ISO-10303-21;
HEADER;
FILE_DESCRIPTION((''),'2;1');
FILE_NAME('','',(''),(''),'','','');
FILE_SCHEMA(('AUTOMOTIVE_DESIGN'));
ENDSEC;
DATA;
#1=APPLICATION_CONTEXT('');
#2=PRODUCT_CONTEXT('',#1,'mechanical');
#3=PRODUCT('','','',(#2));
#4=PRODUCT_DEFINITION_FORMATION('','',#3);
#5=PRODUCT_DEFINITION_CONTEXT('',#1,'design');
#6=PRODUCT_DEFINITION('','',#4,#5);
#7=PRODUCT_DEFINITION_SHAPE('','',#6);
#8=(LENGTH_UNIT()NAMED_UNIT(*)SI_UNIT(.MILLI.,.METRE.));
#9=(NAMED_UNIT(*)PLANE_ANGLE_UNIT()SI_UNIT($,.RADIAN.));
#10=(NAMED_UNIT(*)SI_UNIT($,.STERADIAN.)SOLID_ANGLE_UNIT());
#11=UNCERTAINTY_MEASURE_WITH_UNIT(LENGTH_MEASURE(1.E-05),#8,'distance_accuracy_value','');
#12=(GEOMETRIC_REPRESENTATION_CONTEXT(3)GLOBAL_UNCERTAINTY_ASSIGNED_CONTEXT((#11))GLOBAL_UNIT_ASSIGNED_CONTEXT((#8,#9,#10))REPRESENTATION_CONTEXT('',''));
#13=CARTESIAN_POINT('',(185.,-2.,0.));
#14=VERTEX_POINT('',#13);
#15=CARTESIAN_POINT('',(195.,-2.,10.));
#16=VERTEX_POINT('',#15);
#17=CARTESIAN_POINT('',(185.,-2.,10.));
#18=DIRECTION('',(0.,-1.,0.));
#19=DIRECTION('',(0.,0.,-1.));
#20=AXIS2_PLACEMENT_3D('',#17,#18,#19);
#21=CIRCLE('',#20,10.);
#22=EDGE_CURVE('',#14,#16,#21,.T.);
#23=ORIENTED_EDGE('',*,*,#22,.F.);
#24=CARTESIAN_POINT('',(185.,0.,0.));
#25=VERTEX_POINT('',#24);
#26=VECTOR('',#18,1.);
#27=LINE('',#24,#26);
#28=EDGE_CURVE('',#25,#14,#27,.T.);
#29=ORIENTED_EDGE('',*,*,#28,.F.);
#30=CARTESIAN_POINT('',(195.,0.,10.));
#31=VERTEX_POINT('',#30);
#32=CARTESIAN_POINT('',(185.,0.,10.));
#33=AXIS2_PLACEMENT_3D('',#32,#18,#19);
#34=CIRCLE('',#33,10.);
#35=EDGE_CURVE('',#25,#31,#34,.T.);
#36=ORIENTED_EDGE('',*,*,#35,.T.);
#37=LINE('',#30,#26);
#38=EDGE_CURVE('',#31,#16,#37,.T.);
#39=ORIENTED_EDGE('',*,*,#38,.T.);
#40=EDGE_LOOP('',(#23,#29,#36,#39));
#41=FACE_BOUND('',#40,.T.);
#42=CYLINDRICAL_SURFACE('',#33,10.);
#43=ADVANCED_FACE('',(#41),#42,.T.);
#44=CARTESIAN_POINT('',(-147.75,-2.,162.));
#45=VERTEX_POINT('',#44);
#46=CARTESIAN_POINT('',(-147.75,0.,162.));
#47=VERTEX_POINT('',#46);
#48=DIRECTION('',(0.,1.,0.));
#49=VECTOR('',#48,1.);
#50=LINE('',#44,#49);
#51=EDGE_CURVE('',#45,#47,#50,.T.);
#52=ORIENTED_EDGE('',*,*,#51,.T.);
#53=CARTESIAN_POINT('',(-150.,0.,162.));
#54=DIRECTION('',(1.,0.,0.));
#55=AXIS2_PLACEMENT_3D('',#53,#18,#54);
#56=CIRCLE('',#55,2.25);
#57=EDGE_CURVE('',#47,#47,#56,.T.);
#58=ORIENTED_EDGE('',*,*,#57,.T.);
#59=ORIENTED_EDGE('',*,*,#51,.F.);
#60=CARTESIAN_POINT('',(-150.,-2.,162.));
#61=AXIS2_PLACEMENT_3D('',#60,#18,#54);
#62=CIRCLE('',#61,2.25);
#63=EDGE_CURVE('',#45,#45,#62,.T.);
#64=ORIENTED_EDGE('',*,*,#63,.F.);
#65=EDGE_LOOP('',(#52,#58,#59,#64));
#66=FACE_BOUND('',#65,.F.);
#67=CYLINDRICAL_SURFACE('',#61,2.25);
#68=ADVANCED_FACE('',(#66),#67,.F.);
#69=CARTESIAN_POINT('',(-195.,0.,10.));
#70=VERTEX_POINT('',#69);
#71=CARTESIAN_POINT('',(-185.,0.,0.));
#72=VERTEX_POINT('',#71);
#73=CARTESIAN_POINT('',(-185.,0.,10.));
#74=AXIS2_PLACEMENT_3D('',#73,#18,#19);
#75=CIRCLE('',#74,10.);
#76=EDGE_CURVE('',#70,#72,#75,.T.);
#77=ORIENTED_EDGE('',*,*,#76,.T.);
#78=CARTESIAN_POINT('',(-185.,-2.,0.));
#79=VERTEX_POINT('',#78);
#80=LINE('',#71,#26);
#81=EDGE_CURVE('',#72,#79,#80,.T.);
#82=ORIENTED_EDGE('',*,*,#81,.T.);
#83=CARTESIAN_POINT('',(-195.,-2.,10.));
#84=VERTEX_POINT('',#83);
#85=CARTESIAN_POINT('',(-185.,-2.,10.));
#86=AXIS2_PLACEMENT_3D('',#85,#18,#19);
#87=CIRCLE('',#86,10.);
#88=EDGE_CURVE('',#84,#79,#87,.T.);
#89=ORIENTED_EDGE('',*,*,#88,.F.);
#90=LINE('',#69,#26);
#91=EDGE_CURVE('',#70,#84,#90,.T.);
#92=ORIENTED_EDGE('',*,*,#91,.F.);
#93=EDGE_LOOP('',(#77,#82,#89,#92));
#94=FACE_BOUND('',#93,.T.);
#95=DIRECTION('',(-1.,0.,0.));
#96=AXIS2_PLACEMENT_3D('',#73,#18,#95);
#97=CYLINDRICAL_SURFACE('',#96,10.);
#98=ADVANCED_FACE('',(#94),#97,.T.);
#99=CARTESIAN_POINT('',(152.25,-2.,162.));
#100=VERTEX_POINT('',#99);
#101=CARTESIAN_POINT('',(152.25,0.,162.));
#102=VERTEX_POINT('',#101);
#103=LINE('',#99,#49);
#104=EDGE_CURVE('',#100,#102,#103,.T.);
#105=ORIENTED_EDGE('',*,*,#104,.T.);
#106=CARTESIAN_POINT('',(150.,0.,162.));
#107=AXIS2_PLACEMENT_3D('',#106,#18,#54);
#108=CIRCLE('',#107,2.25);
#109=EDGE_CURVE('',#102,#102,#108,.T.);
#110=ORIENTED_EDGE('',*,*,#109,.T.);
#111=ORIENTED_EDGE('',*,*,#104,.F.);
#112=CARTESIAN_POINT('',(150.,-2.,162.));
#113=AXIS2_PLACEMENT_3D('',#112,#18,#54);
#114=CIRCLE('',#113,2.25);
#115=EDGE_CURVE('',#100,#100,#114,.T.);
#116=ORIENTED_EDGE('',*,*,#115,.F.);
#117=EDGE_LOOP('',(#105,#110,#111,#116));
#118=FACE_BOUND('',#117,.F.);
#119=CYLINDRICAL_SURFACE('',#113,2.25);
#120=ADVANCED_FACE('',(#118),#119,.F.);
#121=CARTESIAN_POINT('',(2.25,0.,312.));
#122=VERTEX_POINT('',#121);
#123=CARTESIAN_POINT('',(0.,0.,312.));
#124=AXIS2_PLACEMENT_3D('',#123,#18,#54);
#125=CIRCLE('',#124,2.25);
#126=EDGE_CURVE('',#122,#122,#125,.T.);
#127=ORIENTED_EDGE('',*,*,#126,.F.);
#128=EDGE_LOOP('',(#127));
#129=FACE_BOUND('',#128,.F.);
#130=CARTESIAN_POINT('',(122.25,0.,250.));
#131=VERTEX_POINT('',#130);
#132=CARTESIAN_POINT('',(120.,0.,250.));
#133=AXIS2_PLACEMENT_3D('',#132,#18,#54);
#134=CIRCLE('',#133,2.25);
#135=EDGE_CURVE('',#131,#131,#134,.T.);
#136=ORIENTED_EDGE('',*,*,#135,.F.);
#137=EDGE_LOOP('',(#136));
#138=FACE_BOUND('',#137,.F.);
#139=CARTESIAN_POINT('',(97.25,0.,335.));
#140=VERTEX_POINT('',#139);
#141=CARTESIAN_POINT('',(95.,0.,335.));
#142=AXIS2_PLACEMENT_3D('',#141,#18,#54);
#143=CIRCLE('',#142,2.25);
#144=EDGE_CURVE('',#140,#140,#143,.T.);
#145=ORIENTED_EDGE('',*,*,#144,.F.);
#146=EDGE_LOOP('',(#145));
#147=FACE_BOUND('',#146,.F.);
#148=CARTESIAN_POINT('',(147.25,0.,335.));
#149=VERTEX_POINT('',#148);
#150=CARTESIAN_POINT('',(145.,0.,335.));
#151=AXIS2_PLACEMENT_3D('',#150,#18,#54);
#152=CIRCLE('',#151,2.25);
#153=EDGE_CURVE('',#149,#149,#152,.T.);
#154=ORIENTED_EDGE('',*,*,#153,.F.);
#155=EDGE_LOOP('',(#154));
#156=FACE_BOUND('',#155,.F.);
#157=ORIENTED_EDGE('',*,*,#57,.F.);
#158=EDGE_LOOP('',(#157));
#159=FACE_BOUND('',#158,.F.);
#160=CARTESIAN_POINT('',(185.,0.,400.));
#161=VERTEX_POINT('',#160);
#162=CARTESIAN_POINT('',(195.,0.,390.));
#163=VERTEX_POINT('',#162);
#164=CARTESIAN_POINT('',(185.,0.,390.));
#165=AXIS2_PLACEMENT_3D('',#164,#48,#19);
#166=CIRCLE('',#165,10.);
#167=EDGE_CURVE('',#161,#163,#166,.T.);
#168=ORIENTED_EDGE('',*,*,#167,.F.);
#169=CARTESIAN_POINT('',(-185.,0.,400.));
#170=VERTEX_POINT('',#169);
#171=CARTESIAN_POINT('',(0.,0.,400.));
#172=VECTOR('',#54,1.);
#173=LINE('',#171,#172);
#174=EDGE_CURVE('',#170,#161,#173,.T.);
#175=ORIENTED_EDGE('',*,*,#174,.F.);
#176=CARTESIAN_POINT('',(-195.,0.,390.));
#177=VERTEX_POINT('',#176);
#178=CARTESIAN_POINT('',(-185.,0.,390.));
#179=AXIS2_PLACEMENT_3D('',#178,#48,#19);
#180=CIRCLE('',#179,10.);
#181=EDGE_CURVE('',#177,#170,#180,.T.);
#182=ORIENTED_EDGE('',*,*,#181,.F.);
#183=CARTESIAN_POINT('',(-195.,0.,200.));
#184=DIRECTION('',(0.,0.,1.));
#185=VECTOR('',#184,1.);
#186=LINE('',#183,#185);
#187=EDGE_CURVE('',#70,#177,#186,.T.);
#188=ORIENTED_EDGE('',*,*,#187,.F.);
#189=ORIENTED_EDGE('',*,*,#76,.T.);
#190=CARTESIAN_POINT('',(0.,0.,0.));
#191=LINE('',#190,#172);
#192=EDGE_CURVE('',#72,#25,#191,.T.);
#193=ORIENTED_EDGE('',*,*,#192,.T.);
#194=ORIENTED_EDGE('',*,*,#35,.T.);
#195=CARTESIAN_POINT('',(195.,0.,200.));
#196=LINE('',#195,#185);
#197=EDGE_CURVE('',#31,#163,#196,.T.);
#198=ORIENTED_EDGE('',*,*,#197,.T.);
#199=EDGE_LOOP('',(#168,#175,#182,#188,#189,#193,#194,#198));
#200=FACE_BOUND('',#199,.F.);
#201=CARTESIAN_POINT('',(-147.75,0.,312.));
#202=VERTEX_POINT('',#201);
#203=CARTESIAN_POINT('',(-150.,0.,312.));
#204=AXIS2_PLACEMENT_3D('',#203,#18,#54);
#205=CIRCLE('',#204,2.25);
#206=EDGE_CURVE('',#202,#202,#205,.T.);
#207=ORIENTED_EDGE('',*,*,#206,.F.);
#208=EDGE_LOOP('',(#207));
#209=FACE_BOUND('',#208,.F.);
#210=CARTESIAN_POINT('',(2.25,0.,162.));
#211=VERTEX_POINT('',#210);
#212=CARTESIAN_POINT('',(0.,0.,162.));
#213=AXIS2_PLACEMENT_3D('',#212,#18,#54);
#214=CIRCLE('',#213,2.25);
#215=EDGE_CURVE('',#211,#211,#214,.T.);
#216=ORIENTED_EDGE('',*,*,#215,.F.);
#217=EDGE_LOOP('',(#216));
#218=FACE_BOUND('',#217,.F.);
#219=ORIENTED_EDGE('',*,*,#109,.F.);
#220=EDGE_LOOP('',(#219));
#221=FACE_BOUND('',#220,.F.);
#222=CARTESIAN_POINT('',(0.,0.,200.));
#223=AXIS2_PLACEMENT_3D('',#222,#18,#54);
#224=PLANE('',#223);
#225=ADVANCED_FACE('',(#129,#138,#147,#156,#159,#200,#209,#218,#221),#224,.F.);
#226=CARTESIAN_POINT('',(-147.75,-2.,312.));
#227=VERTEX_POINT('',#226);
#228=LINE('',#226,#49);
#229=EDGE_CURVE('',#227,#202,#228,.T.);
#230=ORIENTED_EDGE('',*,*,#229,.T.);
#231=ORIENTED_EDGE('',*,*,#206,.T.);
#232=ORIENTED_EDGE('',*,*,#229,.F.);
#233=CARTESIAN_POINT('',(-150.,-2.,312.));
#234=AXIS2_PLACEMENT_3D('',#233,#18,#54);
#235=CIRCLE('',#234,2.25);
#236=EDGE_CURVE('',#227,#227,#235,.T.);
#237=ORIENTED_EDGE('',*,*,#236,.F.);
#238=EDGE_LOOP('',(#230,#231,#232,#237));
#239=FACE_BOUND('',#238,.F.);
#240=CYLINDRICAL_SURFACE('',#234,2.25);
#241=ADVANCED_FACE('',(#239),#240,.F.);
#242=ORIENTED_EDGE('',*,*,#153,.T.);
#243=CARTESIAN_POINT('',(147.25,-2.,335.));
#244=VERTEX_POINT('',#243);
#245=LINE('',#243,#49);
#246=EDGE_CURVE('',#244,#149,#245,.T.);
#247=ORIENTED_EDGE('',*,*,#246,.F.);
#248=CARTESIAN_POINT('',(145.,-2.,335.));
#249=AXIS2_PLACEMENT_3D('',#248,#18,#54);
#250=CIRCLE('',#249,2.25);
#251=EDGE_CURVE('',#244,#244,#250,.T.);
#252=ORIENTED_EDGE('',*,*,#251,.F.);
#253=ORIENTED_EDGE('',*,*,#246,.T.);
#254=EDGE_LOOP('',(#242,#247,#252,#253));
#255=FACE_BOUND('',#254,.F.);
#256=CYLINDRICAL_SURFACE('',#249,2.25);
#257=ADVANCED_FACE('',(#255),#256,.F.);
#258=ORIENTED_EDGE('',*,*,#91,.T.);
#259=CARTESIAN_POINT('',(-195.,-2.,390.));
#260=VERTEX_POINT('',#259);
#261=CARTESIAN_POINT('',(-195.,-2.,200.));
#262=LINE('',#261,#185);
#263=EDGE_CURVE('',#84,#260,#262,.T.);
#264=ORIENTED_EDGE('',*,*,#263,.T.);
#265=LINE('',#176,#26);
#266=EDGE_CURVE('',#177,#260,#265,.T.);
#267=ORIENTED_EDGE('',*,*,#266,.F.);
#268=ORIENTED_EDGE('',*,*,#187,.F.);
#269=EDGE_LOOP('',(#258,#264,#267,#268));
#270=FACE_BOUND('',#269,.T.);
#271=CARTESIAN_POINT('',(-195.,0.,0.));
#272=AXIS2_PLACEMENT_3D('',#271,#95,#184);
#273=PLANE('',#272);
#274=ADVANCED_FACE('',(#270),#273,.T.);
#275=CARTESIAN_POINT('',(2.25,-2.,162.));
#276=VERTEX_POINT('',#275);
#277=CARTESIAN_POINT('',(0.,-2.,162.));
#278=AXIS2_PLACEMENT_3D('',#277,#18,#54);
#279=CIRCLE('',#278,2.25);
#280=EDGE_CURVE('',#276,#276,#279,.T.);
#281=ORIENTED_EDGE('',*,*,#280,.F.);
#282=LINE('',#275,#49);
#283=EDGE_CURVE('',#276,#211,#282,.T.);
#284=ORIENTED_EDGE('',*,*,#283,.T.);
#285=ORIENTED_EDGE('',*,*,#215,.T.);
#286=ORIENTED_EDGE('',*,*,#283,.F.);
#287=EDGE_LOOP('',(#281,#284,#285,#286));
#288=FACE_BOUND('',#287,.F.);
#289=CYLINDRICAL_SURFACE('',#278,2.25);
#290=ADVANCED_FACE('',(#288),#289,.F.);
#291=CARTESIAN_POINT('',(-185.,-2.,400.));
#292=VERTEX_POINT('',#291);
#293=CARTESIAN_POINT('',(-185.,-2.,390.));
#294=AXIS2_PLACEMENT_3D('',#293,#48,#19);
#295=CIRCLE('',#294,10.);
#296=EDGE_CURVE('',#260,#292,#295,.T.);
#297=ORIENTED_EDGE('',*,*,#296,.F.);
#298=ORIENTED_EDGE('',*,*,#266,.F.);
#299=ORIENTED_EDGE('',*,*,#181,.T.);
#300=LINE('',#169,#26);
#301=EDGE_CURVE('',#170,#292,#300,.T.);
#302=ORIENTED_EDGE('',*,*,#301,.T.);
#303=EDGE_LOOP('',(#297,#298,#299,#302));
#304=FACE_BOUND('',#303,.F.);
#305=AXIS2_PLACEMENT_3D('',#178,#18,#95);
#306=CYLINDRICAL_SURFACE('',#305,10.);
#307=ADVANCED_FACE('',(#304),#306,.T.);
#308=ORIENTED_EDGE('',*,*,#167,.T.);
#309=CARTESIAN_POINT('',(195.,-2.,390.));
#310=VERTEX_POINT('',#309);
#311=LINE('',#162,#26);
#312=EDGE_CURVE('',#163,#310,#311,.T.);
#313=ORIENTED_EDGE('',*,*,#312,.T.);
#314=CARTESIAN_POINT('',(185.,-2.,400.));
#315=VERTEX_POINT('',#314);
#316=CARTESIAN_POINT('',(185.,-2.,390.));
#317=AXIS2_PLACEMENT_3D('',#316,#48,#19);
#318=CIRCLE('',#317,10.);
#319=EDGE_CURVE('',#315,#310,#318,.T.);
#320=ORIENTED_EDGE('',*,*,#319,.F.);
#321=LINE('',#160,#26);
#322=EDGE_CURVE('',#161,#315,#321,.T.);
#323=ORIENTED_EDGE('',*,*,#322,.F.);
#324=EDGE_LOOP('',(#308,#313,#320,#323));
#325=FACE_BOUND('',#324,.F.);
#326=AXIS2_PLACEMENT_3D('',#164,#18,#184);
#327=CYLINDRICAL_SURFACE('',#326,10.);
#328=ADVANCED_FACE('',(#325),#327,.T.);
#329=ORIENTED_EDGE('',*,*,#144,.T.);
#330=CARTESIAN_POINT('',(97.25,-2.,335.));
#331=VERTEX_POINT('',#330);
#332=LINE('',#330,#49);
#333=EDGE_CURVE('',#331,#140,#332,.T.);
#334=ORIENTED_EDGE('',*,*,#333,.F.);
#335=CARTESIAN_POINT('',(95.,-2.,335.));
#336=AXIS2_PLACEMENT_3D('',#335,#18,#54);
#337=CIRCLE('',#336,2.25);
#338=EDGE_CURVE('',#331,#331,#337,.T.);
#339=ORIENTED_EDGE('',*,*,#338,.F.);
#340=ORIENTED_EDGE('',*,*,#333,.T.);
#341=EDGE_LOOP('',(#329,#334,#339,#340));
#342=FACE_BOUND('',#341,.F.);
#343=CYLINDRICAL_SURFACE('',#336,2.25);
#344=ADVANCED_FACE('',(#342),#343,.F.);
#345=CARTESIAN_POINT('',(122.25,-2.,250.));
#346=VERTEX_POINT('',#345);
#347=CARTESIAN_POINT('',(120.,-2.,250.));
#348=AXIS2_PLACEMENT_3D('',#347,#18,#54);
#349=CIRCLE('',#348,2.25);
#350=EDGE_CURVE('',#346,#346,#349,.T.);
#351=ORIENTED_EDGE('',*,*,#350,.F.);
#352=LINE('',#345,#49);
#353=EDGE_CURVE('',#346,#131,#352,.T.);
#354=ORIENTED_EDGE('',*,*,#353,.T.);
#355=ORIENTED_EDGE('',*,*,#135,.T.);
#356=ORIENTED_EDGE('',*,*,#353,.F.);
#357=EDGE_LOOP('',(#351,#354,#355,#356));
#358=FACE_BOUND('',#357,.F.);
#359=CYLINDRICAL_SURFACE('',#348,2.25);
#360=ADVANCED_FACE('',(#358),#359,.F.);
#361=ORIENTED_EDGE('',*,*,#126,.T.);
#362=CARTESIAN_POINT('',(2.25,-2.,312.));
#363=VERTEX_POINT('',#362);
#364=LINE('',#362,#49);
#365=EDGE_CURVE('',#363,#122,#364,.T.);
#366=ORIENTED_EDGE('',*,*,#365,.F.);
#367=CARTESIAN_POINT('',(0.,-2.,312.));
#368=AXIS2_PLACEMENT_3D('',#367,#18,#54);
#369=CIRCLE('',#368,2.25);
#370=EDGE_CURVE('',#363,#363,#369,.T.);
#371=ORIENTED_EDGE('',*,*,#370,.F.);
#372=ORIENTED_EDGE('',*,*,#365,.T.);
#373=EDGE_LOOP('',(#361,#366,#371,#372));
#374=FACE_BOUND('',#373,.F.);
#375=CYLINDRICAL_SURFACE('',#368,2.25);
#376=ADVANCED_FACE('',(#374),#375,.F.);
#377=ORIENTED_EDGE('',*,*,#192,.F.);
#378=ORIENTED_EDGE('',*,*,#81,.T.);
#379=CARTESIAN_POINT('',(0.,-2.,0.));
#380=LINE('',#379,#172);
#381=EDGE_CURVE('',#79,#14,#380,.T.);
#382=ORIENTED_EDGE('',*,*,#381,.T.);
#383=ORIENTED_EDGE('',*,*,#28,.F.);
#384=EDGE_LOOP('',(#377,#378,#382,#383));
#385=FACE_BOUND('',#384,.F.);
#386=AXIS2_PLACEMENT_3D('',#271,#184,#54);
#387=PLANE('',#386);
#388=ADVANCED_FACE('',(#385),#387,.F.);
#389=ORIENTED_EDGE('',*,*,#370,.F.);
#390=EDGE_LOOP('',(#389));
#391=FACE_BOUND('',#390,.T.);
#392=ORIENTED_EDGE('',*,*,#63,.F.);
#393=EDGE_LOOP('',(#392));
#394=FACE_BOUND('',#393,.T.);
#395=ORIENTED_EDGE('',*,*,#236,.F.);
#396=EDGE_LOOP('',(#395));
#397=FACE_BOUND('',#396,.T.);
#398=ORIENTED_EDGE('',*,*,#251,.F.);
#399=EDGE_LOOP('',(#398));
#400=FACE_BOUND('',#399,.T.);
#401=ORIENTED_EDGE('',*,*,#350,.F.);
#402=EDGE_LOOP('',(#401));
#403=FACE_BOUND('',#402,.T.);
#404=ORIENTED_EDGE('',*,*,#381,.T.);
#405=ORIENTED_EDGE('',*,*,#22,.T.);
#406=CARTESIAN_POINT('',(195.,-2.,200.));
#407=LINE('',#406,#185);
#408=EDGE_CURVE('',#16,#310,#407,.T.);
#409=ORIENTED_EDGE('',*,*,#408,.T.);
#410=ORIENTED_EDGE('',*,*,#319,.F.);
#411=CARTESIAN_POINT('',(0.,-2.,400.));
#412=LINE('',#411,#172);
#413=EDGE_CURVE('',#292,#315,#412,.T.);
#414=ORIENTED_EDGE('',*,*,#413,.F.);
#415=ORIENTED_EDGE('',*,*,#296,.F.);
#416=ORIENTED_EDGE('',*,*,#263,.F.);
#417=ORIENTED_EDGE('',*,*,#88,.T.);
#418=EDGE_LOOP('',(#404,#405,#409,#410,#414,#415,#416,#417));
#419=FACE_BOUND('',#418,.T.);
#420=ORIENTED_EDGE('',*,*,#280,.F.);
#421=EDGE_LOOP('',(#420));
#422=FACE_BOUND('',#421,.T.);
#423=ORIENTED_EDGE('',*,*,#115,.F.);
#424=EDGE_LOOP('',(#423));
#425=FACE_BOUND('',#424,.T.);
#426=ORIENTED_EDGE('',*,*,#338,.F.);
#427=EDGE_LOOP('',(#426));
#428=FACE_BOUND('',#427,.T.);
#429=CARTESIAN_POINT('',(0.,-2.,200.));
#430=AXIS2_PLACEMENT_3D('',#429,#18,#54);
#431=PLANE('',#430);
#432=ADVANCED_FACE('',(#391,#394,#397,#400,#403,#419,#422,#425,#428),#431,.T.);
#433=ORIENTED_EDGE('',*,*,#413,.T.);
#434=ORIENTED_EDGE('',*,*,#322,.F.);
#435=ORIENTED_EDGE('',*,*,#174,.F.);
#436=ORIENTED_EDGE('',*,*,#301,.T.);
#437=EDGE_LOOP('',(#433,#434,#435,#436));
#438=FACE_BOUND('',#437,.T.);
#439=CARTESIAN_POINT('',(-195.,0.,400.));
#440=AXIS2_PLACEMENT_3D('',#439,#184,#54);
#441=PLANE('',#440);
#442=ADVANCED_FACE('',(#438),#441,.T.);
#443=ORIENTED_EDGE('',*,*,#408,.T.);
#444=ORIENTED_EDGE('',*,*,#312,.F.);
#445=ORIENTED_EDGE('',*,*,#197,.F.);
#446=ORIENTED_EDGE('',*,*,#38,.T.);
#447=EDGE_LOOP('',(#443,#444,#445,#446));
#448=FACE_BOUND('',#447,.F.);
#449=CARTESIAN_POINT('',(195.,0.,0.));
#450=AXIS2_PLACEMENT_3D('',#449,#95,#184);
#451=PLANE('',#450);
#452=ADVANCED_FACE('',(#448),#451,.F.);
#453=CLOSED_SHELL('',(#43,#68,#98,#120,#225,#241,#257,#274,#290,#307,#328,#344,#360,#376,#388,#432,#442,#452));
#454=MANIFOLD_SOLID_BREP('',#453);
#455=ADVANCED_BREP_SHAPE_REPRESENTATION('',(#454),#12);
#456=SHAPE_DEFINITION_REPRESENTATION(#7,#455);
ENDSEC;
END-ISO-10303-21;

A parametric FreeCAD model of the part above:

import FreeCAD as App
import Part
import Sketcher

V = App.Vector
Q = App.Units.Quantity


def edges_at(feature, points):
    """Names of the edges that pass closest to the given points."""
    edges = feature.Shape.Edges
    near = lambda p: min(range(len(edges)), key=lambda i: edges[i].distToShape(Part.Vertex(*p))[0])
    return sorted({f"Edge{near(p) + 1}" for p in points})

doc = App.newDocument("Part")
params = doc.addObject("Spreadsheet::Sheet", "Params")
for row, (alias, value) in enumerate([
    ("sketch1_width", "390 mm"),
    ("sketch1_height", "400 mm"),
    ("pad1_length", "2 mm"),
    ("sketch2_diameter", "4.5 mm"),
    ("pocket1_length", "25 mm"),
    ("fillet_radius", "10 mm"),
], start=1):
    params.set(f"A{row}", alias)
    params.set(f"B{row}", "=" + value)
    params.setAlias(f"B{row}", alias)

body = doc.addObject("PartDesign::Body", "Body")

sketch1 = body.newObject("Sketcher::SketchObject", "Sketch")
sketch1.AttachmentSupport = (doc.getObject("XZ_Plane"), [""])
sketch1.MapMode = "FlatFace"
sketch1.addGeometry(Part.LineSegment(V(-195, 400, 0), V(-195, 0, 0)), False)
sketch1.addGeometry(Part.LineSegment(V(-195, 0, 0), V(195, 0, 0)), False)
sketch1.addGeometry(Part.LineSegment(V(195, 0, 0), V(195, 400, 0)), False)
sketch1.addGeometry(Part.LineSegment(V(195, 400, 0), V(-195, 400, 0)), False)
sketch1.addConstraint(Sketcher.Constraint("Coincident", 0, 2, 1, 1))
sketch1.addConstraint(Sketcher.Constraint("Coincident", 1, 2, 2, 1))
sketch1.addConstraint(Sketcher.Constraint("Coincident", 2, 2, 3, 1))
sketch1.addConstraint(Sketcher.Constraint("Coincident", 3, 2, 0, 1))
sketch1.addConstraint(Sketcher.Constraint("Vertical", 0))
sketch1.addConstraint(Sketcher.Constraint("Horizontal", 1))
sketch1.addConstraint(Sketcher.Constraint("Vertical", 2))
sketch1.addConstraint(Sketcher.Constraint("Horizontal", 3))
sketch1.addConstraint(Sketcher.Constraint("Symmetric", 0, 2, 1, 2, -1, 1))
sketch1.addConstraint(Sketcher.Constraint("DistanceX", 1, 1, 1, 2, Q("390 mm")))
sketch1.addConstraint(Sketcher.Constraint("DistanceY", 0, 2, 0, 1, Q("400 mm")))
sketch1.setExpression("Constraints[9]", "Params.sketch1_width")
sketch1.setExpression("Constraints[10]", "Params.sketch1_height")
pad1 = body.newObject("PartDesign::Pad", "Pad")
pad1.Profile = sketch1
pad1.setExpression("Length", "Params.pad1_length")

sketch2 = body.newObject("Sketcher::SketchObject", "Sketch001")
sketch2.AttachmentSupport = (doc.getObject("XZ_Plane"), [""])
sketch2.MapMode = "FlatFace"
sketch2.AttachmentOffset = App.Placement(V(0, 0, 2), App.Rotation())
sketch2.addGeometry(Part.Circle(V(145, 335, 0), V(0, 0, 1), 2.2), False)
sketch2.addGeometry(Part.Circle(V(95, 335, 0), V(0, 0, 1), 2.2), False)
sketch2.addGeometry(Part.Circle(V(120, 250, 0), V(0, 0, 1), 2.2), False)
sketch2.addGeometry(Part.Circle(V(0, 162, 0), V(0, 0, 1), 2.2), False)
sketch2.addGeometry(Part.Circle(V(-150, 162, 0), V(0, 0, 1), 2.2), False)
sketch2.addGeometry(Part.Circle(V(150, 162, 0), V(0, 0, 1), 2.2), False)
sketch2.addGeometry(Part.Circle(V(-150, 312, 0), V(0, 0, 1), 2.2), False)
sketch2.addGeometry(Part.Circle(V(0, 312, 0), V(0, 0, 1), 2.2), False)
sketch2.addConstraint(Sketcher.Constraint("Equal", 0, 1))
sketch2.addConstraint(Sketcher.Constraint("Equal", 1, 2))
sketch2.addConstraint(Sketcher.Constraint("Equal", 2, 3))
sketch2.addConstraint(Sketcher.Constraint("Equal", 3, 4))
sketch2.addConstraint(Sketcher.Constraint("Equal", 4, 5))
sketch2.addConstraint(Sketcher.Constraint("Equal", 5, 6))
sketch2.addConstraint(Sketcher.Constraint("Equal", 6, 7))
sketch2.addConstraint(Sketcher.Constraint("Symmetric", 4, 3, 5, 3, -2))
sketch2.addConstraint(Sketcher.Constraint("PointOnObject", 3, 3, -2))
sketch2.addConstraint(Sketcher.Constraint("PointOnObject", 7, 3, -2))
sketch2.addConstraint(Sketcher.Constraint("Horizontal", 0, 3, 1, 3))
sketch2.addConstraint(Sketcher.Constraint("Horizontal", 3, 3, 4, 3))
sketch2.addConstraint(Sketcher.Constraint("Horizontal", 6, 3, 7, 3))
sketch2.addConstraint(Sketcher.Constraint("Vertical", 4, 3, 6, 3))
sketch2.addConstraint(Sketcher.Constraint("Diameter", 0, Q("4.5 mm")))
sketch2.addConstraint(Sketcher.Constraint("DistanceX", -1, 1, 0, 3, Q("145 mm")))
sketch2.addConstraint(Sketcher.Constraint("DistanceY", -1, 1, 0, 3, Q("335 mm")))
sketch2.addConstraint(Sketcher.Constraint("DistanceX", -1, 1, 1, 3, Q("95 mm")))
sketch2.addConstraint(Sketcher.Constraint("DistanceX", -1, 1, 2, 3, Q("120 mm")))
sketch2.addConstraint(Sketcher.Constraint("DistanceY", -1, 1, 2, 3, Q("250 mm")))
sketch2.addConstraint(Sketcher.Constraint("DistanceY", -1, 1, 3, 3, Q("162 mm")))
sketch2.addConstraint(Sketcher.Constraint("DistanceX", 4, 3, -1, 1, Q("150 mm")))
sketch2.addConstraint(Sketcher.Constraint("DistanceY", -1, 1, 6, 3, Q("312 mm")))
sketch2.setExpression("Constraints[14]", "Params.sketch2_diameter")
pocket1 = body.newObject("PartDesign::Pocket", "Pocket")
pocket1.Profile = sketch2
pocket1.setExpression("Length", "Params.pocket1_length")
doc.recompute()

fillet = body.newObject("PartDesign::Fillet", "Fillet")
fillet.Base = (pocket1, edges_at(pocket1, [
    (195, -1, 400),
    (-195, -1, 400),
    (195, -1, 0),
    (-195, -1, 0),
]))
fillet.setExpression("Radius", "Params.fillet_radius")

doc.recompute()
